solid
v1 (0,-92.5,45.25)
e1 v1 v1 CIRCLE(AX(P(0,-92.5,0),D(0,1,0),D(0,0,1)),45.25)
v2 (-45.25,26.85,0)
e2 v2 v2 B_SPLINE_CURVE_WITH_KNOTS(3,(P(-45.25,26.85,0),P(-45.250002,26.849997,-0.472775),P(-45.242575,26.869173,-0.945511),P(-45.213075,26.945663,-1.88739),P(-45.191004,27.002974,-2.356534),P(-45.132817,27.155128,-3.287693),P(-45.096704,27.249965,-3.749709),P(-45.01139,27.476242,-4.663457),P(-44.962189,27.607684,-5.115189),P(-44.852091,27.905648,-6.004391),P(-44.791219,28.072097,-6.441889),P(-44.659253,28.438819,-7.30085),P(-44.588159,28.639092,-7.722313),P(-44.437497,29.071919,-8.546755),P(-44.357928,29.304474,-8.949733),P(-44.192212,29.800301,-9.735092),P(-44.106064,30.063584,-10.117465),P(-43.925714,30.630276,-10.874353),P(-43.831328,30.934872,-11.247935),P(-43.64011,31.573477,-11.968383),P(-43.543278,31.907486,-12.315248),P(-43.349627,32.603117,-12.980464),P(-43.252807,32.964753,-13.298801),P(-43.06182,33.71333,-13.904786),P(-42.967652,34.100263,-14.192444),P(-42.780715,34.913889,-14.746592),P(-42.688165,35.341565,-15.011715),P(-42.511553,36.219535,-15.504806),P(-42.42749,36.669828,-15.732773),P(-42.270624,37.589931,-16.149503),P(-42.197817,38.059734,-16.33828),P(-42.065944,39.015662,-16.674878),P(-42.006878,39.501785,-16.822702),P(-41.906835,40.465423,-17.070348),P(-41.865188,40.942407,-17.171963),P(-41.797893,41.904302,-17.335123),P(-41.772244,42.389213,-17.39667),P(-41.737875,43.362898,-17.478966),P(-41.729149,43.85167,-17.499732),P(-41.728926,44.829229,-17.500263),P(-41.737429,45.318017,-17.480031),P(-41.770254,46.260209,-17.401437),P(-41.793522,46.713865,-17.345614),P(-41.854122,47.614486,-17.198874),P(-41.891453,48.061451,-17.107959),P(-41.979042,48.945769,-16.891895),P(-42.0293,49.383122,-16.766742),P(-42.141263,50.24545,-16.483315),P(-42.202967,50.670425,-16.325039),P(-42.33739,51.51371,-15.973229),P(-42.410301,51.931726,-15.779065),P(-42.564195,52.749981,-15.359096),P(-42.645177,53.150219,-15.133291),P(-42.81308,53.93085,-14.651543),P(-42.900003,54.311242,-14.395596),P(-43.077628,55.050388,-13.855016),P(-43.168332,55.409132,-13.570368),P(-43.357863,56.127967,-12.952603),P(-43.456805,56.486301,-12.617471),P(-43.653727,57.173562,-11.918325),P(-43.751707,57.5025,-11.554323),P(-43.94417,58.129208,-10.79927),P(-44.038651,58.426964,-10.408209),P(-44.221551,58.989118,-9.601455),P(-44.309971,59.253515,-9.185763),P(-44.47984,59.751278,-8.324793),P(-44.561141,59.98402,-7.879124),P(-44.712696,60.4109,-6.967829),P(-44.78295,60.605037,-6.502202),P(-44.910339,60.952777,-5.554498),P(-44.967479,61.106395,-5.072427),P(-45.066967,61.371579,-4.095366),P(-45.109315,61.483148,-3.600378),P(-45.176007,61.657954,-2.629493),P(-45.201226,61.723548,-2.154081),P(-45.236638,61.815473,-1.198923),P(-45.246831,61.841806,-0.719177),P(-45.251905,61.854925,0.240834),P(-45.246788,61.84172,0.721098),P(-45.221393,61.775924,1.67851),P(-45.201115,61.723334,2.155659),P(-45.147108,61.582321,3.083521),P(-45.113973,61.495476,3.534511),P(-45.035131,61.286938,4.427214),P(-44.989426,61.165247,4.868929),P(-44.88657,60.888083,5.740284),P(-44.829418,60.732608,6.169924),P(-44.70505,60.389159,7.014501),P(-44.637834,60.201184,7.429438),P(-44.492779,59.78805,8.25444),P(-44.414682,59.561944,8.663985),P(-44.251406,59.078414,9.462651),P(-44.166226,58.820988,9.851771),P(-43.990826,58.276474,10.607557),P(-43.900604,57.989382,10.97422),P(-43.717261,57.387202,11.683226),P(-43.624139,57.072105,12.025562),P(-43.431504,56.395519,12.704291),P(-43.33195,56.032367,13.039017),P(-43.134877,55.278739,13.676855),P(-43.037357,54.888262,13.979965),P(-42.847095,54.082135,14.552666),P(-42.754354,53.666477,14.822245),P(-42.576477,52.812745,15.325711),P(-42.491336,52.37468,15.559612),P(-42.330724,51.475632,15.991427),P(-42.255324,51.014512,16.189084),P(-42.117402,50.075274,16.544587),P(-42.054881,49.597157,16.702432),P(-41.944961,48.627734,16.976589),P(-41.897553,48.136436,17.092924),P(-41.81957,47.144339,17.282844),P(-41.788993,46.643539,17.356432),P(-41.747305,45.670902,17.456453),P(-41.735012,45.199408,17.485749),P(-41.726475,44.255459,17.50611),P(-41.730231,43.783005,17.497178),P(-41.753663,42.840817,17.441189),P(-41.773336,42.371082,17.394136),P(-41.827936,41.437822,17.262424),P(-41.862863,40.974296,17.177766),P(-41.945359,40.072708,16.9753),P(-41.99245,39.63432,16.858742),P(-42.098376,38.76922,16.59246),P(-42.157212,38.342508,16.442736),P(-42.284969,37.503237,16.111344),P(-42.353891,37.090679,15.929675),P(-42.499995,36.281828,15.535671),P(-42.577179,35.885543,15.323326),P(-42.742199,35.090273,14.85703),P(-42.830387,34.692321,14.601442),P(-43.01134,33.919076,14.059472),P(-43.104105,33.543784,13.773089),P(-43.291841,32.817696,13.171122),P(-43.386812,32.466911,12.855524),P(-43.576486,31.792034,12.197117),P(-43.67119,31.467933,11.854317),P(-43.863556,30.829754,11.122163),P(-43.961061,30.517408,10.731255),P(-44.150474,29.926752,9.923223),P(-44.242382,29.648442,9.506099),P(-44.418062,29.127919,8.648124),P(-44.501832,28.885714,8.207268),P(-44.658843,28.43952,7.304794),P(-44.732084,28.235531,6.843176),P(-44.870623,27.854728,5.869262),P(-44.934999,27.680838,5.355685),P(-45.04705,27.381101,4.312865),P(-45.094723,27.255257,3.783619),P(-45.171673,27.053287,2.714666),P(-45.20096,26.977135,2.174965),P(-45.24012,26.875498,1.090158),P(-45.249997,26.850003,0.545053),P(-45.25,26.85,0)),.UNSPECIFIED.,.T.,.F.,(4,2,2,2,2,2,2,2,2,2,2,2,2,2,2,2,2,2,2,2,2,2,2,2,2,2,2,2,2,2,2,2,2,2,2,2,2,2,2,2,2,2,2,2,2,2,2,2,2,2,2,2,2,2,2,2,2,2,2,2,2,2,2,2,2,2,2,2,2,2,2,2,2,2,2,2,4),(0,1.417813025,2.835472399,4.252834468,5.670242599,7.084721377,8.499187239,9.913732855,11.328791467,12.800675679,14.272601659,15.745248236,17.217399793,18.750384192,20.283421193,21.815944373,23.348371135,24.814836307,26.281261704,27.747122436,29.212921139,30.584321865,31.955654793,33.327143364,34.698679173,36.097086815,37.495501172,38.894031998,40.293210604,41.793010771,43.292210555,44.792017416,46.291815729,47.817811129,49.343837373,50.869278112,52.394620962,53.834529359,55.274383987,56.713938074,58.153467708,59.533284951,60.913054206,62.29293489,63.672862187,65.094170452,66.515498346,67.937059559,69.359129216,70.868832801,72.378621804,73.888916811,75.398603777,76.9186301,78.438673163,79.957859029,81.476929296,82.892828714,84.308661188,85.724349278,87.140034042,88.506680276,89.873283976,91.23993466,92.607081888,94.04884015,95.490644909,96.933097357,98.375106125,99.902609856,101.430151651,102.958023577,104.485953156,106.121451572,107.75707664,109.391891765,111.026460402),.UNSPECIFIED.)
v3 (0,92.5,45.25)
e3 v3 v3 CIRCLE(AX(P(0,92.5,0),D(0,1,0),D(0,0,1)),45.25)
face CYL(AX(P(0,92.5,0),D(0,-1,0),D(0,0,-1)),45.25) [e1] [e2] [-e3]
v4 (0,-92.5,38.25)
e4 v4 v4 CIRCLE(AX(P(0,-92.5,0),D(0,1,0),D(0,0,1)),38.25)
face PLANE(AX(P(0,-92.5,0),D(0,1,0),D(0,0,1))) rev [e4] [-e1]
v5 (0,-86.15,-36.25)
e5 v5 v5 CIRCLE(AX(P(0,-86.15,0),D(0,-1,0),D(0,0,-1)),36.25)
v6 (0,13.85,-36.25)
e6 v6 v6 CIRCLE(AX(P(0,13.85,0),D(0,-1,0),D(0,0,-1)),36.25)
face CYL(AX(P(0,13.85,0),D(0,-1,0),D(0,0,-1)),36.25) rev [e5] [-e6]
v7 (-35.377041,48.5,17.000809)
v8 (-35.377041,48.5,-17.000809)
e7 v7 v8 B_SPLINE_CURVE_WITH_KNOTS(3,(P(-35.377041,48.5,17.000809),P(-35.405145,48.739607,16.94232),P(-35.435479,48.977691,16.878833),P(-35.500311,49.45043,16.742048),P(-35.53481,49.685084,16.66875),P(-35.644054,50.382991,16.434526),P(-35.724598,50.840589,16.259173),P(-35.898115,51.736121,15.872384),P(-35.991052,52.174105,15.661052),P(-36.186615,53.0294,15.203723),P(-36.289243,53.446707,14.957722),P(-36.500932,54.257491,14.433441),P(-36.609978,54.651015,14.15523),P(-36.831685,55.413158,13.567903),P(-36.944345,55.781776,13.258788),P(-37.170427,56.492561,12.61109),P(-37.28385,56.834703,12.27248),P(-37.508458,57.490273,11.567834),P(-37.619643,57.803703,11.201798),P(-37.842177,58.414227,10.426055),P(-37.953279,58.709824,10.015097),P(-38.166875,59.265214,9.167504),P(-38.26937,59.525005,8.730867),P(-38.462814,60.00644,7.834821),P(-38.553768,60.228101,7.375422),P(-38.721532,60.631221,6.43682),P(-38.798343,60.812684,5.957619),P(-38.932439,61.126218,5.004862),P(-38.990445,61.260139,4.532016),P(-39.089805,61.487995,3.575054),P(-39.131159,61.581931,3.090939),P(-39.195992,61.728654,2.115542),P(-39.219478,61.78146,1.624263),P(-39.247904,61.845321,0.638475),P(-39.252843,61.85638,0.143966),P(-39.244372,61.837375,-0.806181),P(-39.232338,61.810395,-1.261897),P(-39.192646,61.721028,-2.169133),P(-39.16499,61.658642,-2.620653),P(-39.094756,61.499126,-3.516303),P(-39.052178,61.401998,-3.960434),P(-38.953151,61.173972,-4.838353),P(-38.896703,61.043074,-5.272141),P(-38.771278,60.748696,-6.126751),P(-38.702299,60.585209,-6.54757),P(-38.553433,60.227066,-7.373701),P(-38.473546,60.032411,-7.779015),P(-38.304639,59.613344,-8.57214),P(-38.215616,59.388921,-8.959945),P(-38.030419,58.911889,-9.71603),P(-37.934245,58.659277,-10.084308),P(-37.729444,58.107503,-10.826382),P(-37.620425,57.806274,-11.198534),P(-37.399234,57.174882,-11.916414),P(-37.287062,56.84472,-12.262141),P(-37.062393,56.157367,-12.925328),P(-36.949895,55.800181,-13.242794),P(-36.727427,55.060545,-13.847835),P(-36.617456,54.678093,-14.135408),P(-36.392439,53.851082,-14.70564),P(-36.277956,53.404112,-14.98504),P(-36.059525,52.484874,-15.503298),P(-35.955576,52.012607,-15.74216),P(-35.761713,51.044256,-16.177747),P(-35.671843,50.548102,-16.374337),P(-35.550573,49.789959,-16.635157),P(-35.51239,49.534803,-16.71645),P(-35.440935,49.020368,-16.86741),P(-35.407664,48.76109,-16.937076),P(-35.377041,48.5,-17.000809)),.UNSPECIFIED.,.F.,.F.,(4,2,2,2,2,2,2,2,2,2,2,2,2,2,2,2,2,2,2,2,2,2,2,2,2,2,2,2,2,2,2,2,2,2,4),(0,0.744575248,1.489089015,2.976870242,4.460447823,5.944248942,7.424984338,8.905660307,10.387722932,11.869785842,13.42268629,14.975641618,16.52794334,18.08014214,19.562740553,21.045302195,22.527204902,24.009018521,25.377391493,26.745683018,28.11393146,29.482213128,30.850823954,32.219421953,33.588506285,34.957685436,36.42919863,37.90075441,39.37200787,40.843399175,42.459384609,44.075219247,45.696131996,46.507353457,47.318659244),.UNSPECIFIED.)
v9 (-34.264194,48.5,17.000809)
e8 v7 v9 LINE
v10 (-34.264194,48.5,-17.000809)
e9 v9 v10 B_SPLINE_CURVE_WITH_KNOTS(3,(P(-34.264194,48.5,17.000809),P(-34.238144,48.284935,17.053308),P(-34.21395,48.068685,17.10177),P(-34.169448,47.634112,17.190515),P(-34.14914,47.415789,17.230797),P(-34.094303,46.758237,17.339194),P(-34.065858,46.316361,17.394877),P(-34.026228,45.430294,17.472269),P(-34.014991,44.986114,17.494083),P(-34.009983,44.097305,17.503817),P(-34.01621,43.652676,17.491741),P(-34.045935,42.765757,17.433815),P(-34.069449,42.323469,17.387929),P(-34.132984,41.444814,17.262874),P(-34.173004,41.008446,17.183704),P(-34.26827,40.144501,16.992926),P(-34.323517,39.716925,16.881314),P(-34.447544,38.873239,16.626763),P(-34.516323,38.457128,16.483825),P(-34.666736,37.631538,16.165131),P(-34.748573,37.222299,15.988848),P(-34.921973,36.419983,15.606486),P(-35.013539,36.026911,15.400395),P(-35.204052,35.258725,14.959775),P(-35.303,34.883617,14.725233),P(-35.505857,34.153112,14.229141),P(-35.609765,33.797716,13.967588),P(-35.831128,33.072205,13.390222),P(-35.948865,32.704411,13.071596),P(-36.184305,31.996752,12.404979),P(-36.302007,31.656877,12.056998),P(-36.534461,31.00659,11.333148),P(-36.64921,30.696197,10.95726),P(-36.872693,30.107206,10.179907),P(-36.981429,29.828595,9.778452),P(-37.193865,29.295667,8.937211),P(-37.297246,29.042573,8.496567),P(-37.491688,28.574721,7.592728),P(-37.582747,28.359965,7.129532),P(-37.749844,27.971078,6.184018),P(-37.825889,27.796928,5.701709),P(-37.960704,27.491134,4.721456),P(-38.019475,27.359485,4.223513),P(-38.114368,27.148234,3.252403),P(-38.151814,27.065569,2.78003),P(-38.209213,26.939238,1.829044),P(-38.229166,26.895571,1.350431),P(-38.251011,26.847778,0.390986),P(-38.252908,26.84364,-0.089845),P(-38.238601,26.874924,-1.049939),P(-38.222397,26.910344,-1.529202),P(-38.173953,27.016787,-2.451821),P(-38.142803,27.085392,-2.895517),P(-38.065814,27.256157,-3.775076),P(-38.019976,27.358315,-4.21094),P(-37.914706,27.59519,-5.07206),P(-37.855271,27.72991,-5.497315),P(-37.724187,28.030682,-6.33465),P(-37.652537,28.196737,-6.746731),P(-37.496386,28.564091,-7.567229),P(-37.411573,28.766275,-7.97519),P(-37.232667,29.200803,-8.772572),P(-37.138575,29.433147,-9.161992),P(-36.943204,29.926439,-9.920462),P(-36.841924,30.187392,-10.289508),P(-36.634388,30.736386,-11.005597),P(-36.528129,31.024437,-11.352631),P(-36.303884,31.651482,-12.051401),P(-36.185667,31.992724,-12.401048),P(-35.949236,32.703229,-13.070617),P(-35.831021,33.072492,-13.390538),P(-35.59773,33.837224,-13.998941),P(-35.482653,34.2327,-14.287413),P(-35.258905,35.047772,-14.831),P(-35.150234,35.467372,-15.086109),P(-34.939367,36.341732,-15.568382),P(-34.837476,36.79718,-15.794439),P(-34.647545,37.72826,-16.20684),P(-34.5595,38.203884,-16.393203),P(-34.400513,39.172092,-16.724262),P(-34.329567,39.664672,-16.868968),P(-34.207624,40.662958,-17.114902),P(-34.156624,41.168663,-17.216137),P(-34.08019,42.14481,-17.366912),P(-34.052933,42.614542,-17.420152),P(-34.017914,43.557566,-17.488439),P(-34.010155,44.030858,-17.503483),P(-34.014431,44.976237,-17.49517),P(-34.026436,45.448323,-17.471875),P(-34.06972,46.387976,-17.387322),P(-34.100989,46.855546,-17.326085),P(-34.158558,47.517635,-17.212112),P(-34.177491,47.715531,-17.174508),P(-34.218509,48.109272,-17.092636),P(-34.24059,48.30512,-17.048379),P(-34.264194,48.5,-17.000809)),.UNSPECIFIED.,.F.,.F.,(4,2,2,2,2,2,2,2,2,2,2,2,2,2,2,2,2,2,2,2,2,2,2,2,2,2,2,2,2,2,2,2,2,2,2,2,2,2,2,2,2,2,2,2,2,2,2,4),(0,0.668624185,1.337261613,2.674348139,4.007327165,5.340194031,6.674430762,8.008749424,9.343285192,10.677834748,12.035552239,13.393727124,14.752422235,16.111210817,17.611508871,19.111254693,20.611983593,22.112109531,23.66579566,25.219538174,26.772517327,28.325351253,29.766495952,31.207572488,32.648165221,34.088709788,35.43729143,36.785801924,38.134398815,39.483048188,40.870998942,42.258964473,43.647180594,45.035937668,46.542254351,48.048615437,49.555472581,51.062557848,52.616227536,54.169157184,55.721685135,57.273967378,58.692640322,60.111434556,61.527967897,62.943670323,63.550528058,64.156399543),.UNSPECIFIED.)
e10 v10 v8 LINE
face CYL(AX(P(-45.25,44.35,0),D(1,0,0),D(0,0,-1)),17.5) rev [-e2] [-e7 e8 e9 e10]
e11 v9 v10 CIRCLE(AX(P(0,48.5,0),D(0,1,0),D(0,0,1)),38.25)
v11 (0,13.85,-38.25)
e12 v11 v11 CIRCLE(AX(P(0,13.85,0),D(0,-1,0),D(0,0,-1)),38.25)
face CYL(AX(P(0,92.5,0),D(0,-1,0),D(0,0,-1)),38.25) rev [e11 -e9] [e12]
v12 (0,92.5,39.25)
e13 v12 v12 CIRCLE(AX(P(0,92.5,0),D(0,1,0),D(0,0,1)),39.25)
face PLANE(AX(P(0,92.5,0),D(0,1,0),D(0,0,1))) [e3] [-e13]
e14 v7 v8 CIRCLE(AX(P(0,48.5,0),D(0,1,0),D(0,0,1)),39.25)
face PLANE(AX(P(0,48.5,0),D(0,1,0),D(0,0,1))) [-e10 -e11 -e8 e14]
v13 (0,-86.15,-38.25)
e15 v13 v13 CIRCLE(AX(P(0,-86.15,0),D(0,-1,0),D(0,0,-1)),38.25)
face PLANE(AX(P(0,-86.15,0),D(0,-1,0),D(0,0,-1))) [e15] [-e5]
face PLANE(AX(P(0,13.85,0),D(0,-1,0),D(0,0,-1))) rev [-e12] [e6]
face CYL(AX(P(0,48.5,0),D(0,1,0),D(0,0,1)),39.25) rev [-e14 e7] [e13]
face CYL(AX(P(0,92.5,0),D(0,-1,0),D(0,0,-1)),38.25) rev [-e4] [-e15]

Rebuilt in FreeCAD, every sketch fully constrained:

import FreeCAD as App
import Part
import Sketcher
from FreeCAD import Vector
Q = App.Units.Quantity

doc = App.newDocument("Part")
params = doc.addObject("Spreadsheet::Sheet", "Params")
for row, (alias, value) in enumerate([
    ("sketch1_diameter", "90.5 mm"),
    ("sketch1_diameter2", "76.5 mm"),
    ("pad1_length", "185 mm"),
    ("sketch2_diameter", "76.5 mm"),
    ("sketch2_diameter2", "72.5 mm"),
    ("pad2_length", "100 mm"),
    ("sketch3_diameter", "78.5 mm"),
    ("sketch3_diameter2", "76.5 mm"),
    ("pocket1_length", "44 mm"),
    ("sketch4_diameter", "35 mm"),
], start=1):
    params.set(f"A{row}", alias)
    params.set(f"B{row}", "=" + value)
    params.setAlias(f"B{row}", alias)

body = doc.addObject("PartDesign::Body", "Body")

# Sketch on XZ plane
sketch1 = body.newObject("Sketcher::SketchObject", "Sketch")
sketch1.AttachmentSupport = (doc.getObject("XZ_Plane"), [""])
sketch1.MapMode = "FlatFace"
sketch1.addGeometry(Part.Circle(Vector(0, 0, 0), Vector(0, 0, 1), 45.25), False)
sketch1.addGeometry(Part.Circle(Vector(0, 0, 0), Vector(0, 0, 1), 38.25), False)
sketch1.addConstraint(Sketcher.Constraint("Coincident", 0, 3, -1, 1))
sketch1.addConstraint(Sketcher.Constraint("Coincident", 1, 3, -1, 1))
sketch1.addConstraint(Sketcher.Constraint("Diameter", 0, Q("90.5 mm")))
sketch1.addConstraint(Sketcher.Constraint("Diameter", 1, Q("76.5 mm")))
sketch1.setExpression("Constraints[2]", "Params.sketch1_diameter")
sketch1.setExpression("Constraints[3]", "Params.sketch1_diameter2")
pad1 = body.newObject("PartDesign::Pad", "Pad")
pad1.Profile = sketch1
pad1.setExpression("Length", "Params.pad1_length")
pad1.Midplane = True

# Sketch on XZ plane
sketch2 = body.newObject("Sketcher::SketchObject", "Sketch001")
sketch2.AttachmentSupport = (doc.getObject("XZ_Plane"), [""])
sketch2.MapMode = "FlatFace"
sketch2.AttachmentOffset = App.Placement(Vector(0, 0, 86.15), App.Rotation())
sketch2.addGeometry(Part.Circle(Vector(0, 0, 0), Vector(0, 0, 1), 38.25), False)
sketch2.addGeometry(Part.Circle(Vector(0, 0, 0), Vector(0, 0, 1), 36.25), False)
sketch2.addConstraint(Sketcher.Constraint("Coincident", 0, 3, -1, 1))
sketch2.addConstraint(Sketcher.Constraint("Coincident", 1, 3, -1, 1))
sketch2.addConstraint(Sketcher.Constraint("Diameter", 0, Q("76.5 mm")))
sketch2.addConstraint(Sketcher.Constraint("Diameter", 1, Q("72.5 mm")))
sketch2.setExpression("Constraints[2]", "Params.sketch2_diameter")
sketch2.setExpression("Constraints[3]", "Params.sketch2_diameter2")
pad2 = body.newObject("PartDesign::Pad", "Pad001")
pad2.Profile = sketch2
pad2.setExpression("Length", "Params.pad2_length")
pad2.Reversed = True

# Sketch on XZ plane
sketch3 = body.newObject("Sketcher::SketchObject", "Sketch002")
sketch3.AttachmentSupport = (doc.getObject("XZ_Plane"), [""])
sketch3.MapMode = "FlatFace"
sketch3.AttachmentOffset = App.Placement(Vector(0, 0, -48.5), App.Rotation())
sketch3.addGeometry(Part.Circle(Vector(0, 0, 0), Vector(0, 0, 1), 39.25), False)
sketch3.addGeometry(Part.Circle(Vector(0, 0, 0), Vector(0, 0, 1), 38.25), False)
sketch3.addConstraint(Sketcher.Constraint("Coincident", 0, 3, -1, 1))
sketch3.addConstraint(Sketcher.Constraint("Coincident", 1, 3, -1, 1))
sketch3.addConstraint(Sketcher.Constraint("Diameter", 0, Q("78.5 mm")))
sketch3.addConstraint(Sketcher.Constraint("Diameter", 1, Q("76.5 mm")))
sketch3.setExpression("Constraints[2]", "Params.sketch3_diameter")
sketch3.setExpression("Constraints[3]", "Params.sketch3_diameter2")
pocket1 = body.newObject("PartDesign::Pocket", "Pocket")
pocket1.Profile = sketch3
pocket1.setExpression("Length", "Params.pocket1_length")

# Sketch on YZ plane
sketch4 = body.newObject("Sketcher::SketchObject", "Sketch003")
sketch4.AttachmentSupport = (doc.getObject("YZ_Plane"), [""])
sketch4.MapMode = "FlatFace"
sketch4.addGeometry(Part.Circle(Vector(44.35, 0, 0), Vector(0, 0, 1), 17.5), False)
sketch4.addConstraint(Sketcher.Constraint("PointOnObject", 0, 3, -1))
sketch4.addConstraint(Sketcher.Constraint("Diameter", 0, Q("35 mm")))
sketch4.addConstraint(Sketcher.Constraint("DistanceX", -1, 1, 0, 3, Q("44.35 mm")))
sketch4.setExpression("Constraints[1]", "Params.sketch4_diameter")
pocket2 = body.newObject("PartDesign::Pocket", "Pocket001")
pocket2.Profile = sketch4
pocket2.Type = "ThroughAll"

doc.recompute()
